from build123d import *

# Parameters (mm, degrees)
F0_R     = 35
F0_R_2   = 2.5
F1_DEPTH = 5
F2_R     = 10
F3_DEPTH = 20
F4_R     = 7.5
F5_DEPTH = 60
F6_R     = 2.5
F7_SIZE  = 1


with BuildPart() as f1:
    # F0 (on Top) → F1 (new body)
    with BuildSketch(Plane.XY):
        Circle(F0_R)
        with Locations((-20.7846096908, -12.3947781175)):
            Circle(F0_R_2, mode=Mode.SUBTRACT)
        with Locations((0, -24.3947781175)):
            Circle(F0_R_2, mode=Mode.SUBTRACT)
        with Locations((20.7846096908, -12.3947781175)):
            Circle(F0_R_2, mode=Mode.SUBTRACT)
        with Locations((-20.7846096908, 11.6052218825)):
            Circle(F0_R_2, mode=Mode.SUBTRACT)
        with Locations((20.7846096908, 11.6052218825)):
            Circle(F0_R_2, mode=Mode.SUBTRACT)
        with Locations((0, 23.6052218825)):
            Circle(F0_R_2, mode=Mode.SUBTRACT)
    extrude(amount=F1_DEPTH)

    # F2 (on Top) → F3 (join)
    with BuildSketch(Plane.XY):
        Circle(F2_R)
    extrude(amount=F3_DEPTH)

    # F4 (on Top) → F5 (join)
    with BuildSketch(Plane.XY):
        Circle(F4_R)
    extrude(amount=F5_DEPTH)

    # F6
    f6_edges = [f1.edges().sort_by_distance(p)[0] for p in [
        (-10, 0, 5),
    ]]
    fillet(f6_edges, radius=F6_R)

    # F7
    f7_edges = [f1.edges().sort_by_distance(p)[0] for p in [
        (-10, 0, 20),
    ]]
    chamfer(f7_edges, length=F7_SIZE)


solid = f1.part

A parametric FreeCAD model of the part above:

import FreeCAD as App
import Part
import Sketcher

V = App.Vector


def edges_at(feature, points):
    """Names of the edges that pass closest to the given points."""
    edges = feature.Shape.Edges
    near = lambda p: min(range(len(edges)), key=lambda i: edges[i].distToShape(Part.Vertex(*p))[0])
    return sorted({f"Edge{near(p) + 1}" for p in points})

doc = App.newDocument("Part")
params = doc.addObject("Spreadsheet::Sheet", "Params")
for row, (alias, value) in enumerate([
    ("sketch1_diameter", "70 mm"),
    ("sketch1_diameter2", "5 mm"),
    ("pad1_length", "5 mm"),
    ("sketch2_diameter", "20 mm"),
    ("pad2_length", "20 mm"),
    ("sketch3_diameter", "15 mm"),
    ("pad3_length", "60 mm"),
    ("fillet_radius", "2.5 mm"),
    ("chamfer_size", "1 mm"),
], start=1):
    params.set(f"A{row}", alias)
    params.set(f"B{row}", "=" + value)
    params.setAlias(f"B{row}", alias)

body = doc.addObject("PartDesign::Body", "Body")

# Sketch on XY plane
sketch1 = body.newObject("Sketcher::SketchObject", "Sketch")
sketch1.AttachmentSupport = (doc.getObject("XY_Plane"), [""])
sketch1.MapMode = "FlatFace"
sketch1.addGeometry([
    Part.Circle(V(0, 0, 0), V(0, 0, 1), 35),  # 0
    Part.Circle(V(-20.8, -12.4, 0), V(0, 0, 1), 2.5),  # 1
    Part.Circle(V(0, -24.4, 0), V(0, 0, 1), 2.5),  # 2
    Part.Circle(V(20.8, -12.4, 0), V(0, 0, 1), 2.5),  # 3
    Part.Circle(V(-20.8, 11.6, 0), V(0, 0, 1), 2.5),  # 4
    Part.Circle(V(20.8, 11.6, 0), V(0, 0, 1), 2.5),  # 5
    Part.Circle(V(0, 23.6, 0), V(0, 0, 1), 2.5),  # 6
], False)
sketch1.addConstraint([
    Sketcher.Constraint("Coincident", 0, 3, -1, 1),
    Sketcher.Constraint("Equal", 1, 2),
    Sketcher.Constraint("Equal", 2, 3),
    Sketcher.Constraint("Equal", 3, 4),
    Sketcher.Constraint("Equal", 4, 5),
    Sketcher.Constraint("Equal", 5, 6),
    Sketcher.Constraint("Symmetric", 1, 3, 3, 3, -2),
    Sketcher.Constraint("Symmetric", 4, 3, 5, 3, -2),
    Sketcher.Constraint("PointOnObject", 2, 3, -2),
    Sketcher.Constraint("PointOnObject", 6, 3, -2),
    Sketcher.Constraint("Vertical", 1, 3, 4, 3),
    Sketcher.Constraint("Diameter", 0, 70.0),
    Sketcher.Constraint("Diameter", 1, 5.0),
    Sketcher.Constraint("DistanceY", 2, 3, 1, 3, 12.0),
    Sketcher.Constraint("DistanceY", 1, 3, 4, 3, 24.0),
    Sketcher.Constraint("DistanceY", 4, 3, 6, 3, 12.0),
    Sketcher.Constraint("DistanceX", 1, 3, -1, 1, 20.78461),
    Sketcher.Constraint("DistanceY", 1, 3, -1, 1, 12.394778),
])
sketch1.setExpression("Constraints[11]", "Params.sketch1_diameter")
sketch1.setExpression("Constraints[12]", "Params.sketch1_diameter2")
pad1 = body.newObject("PartDesign::Pad", "Pad")
pad1.Profile = sketch1
pad1.setExpression("Length", "Params.pad1_length")

# Sketch on XY plane
sketch2 = body.newObject("Sketcher::SketchObject", "Sketch001")
sketch2.AttachmentSupport = (doc.getObject("XY_Plane"), [""])
sketch2.MapMode = "FlatFace"
sketch2.addGeometry(Part.Circle(V(0, 0, 0), V(0, 0, 1), 10), False)
sketch2.addConstraint([
    Sketcher.Constraint("Coincident", 0, 3, -1, 1),
    Sketcher.Constraint("Diameter", 0, 20.0),
])
sketch2.setExpression("Constraints[1]", "Params.sketch2_diameter")
pad2 = body.newObject("PartDesign::Pad", "Pad001")
pad2.Profile = sketch2
pad2.setExpression("Length", "Params.pad2_length")

# Sketch on XY plane
sketch3 = body.newObject("Sketcher::SketchObject", "Sketch002")
sketch3.AttachmentSupport = (doc.getObject("XY_Plane"), [""])
sketch3.MapMode = "FlatFace"
sketch3.addGeometry(Part.Circle(V(0, 0, 0), V(0, 0, 1), 8), False)
sketch3.addConstraint([
    Sketcher.Constraint("Coincident", 0, 3, -1, 1),
    Sketcher.Constraint("Diameter", 0, 15.0),
])
sketch3.setExpression("Constraints[1]", "Params.sketch3_diameter")
pad3 = body.newObject("PartDesign::Pad", "Pad002")
pad3.Profile = sketch3
pad3.setExpression("Length", "Params.pad3_length")
doc.recompute()

fillet = body.newObject("PartDesign::Fillet", "Fillet")
fillet.Base = (pad3, edges_at(pad3, [(-10, 0, 5)]))
fillet.setExpression("Radius", "Params.fillet_radius")
doc.recompute()

chamfer = body.newObject("PartDesign::Chamfer", "Chamfer")
chamfer.Base = (fillet, edges_at(fillet, [(-10, 0, 20)]))
chamfer.setExpression("Size", "Params.chamfer_size")

doc.recompute()
